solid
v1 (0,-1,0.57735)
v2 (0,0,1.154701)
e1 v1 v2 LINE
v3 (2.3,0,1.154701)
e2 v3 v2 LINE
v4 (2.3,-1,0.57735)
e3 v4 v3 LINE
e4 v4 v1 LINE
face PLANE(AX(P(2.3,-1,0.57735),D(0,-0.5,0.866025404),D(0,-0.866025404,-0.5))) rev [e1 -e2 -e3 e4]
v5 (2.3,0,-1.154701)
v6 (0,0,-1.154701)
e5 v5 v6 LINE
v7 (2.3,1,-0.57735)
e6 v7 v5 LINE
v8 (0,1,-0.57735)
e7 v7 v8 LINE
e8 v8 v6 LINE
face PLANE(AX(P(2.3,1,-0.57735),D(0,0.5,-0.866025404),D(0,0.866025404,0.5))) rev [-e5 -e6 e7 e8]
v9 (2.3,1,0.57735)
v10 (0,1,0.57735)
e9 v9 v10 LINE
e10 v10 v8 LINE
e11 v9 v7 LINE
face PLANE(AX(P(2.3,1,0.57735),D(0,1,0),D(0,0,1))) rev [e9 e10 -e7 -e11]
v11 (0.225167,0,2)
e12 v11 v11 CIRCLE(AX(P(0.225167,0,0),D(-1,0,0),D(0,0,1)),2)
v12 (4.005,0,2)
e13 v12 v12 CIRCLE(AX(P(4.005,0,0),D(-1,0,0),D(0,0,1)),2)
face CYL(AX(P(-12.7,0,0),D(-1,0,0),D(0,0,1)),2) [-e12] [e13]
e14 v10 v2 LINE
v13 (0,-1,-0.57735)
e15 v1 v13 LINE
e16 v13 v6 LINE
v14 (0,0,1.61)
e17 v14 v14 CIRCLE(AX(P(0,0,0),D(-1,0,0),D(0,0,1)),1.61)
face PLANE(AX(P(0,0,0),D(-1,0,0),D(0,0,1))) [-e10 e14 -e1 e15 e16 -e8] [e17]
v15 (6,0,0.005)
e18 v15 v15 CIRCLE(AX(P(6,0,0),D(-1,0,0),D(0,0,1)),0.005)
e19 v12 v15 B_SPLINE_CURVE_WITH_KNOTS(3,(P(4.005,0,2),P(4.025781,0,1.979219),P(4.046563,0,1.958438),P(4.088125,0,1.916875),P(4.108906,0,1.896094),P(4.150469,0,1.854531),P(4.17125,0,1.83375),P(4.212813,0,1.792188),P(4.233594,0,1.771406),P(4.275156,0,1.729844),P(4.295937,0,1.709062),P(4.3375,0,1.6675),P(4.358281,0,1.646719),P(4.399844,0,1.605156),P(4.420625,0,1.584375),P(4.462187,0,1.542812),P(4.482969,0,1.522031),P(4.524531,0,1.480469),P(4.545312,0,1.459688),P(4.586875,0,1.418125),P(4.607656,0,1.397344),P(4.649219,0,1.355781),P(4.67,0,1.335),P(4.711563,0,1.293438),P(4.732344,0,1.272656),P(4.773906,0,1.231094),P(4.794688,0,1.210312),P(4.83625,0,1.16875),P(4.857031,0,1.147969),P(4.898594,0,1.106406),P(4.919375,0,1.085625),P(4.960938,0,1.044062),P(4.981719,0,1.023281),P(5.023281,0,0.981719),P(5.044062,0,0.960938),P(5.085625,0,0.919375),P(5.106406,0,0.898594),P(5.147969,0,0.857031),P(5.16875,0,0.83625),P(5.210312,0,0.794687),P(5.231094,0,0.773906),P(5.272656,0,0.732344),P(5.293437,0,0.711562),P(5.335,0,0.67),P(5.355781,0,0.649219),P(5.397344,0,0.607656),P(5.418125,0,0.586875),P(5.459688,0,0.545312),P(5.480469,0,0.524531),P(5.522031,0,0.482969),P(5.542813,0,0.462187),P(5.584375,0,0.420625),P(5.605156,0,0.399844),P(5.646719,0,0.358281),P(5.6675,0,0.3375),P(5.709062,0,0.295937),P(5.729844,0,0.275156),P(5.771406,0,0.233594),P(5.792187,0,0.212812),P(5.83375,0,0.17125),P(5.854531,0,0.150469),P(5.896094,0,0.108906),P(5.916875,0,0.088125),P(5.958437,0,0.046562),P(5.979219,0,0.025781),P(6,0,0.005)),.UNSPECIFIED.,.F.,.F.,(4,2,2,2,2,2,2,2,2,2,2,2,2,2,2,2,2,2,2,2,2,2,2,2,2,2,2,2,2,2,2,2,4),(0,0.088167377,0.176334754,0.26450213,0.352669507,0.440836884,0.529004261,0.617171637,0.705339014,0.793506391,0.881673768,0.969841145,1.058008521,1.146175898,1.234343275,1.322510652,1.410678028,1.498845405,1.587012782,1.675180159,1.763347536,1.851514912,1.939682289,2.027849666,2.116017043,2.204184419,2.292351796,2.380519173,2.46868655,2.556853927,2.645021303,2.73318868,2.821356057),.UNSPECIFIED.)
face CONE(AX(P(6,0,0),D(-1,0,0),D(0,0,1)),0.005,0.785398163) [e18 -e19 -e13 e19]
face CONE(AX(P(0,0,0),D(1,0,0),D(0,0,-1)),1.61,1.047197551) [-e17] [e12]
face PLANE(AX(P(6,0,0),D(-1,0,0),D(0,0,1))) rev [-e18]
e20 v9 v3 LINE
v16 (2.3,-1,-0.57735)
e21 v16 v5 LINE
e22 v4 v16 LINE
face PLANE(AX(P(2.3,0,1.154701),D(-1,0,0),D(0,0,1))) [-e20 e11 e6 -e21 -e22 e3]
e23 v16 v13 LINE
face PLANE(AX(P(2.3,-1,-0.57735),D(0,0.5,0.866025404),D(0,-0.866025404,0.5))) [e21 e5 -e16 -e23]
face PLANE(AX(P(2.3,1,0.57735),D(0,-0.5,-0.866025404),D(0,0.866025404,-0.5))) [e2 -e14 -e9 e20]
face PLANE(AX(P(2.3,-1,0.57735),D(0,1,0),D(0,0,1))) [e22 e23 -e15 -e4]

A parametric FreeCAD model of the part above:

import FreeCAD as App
import Part
import Sketcher
Q = App.Units.Quantity

doc = App.newDocument("Part")
body = doc.addObject("PartDesign::Body", "Body")

# Sketch on XY plane
sketch1 = doc.addObject("Sketcher::SketchObject", "Sketch")
body.addObject(sketch1)
sketch1.AttachmentSupport = (doc.XY_Plane, [""])
sketch1.MapMode = "FlatFace"
sketch1.addGeometry(Part.LineSegment(App.Vector(0, 1.61, 0), App.Vector(0, 0, 0)), False)
sketch1.addGeometry(Part.LineSegment(App.Vector(0, 0, 0), App.Vector(6, 0, 0)), False)
sketch1.addGeometry(Part.LineSegment(App.Vector(6, 0, 0), App.Vector(6, 0.005, 0)), False)
sketch1.addGeometry(Part.LineSegment(App.Vector(6, 0.005, 0), App.Vector(4.005, 2, 0)), False)
sketch1.addGeometry(Part.LineSegment(App.Vector(4.005, 2, 0), App.Vector(0.225, 2, 0)), False)
sketch1.addGeometry(Part.LineSegment(App.Vector(0.225, 2, 0), App.Vector(0, 1.61, 0)), False)
sketch1.addConstraint(Sketcher.Constraint("Coincident", 0, 2, 1, 1))
sketch1.addConstraint(Sketcher.Constraint("Coincident", 1, 2, 2, 1))
sketch1.addConstraint(Sketcher.Constraint("Coincident", 2, 2, 3, 1))
sketch1.addConstraint(Sketcher.Constraint("Coincident", 3, 2, 4, 1))
sketch1.addConstraint(Sketcher.Constraint("Coincident", 4, 2, 5, 1))
sketch1.addConstraint(Sketcher.Constraint("Coincident", 5, 2, 0, 1))
sketch1.addConstraint(Sketcher.Constraint("Vertical", 0))
sketch1.addConstraint(Sketcher.Constraint("Horizontal", 1))
sketch1.addConstraint(Sketcher.Constraint("Vertical", 2))
sketch1.addConstraint(Sketcher.Constraint("Horizontal", 4))
sketch1.addConstraint(Sketcher.Constraint("Coincident", 0, 2, -1, 1))
sketch1.addConstraint(Sketcher.Constraint("DistanceX", 1, 1, 1, 2, Q("6 mm")))
sketch1.addConstraint(Sketcher.Constraint("Angle", 3, Q("135 deg")))
sketch1.addConstraint(Sketcher.Constraint("Angle", 5, Q("-120 deg")))
sketch1.addConstraint(Sketcher.Constraint("DistanceY", -1, 1, 3, 2, Q("2 mm")))
sketch1.addConstraint(Sketcher.Constraint("DistanceY", 0, 2, 0, 1, Q("1.61 mm")))
sketch1.addConstraint(Sketcher.Constraint("DistanceY", 2, 1, 2, 2, Q("0.005 mm")))
revolution = doc.addObject("PartDesign::Revolution", "Revolution")
body.addObject(revolution)
revolution.Profile = sketch1
revolution.ReferenceAxis = (sketch1, ["H_Axis"])
revolution.Angle = 360

# Sketch on YZ plane
sketch2 = doc.addObject("Sketcher::SketchObject", "Sketch001")
body.addObject(sketch2)
sketch2.AttachmentSupport = (doc.YZ_Plane, [""])
sketch2.MapMode = "FlatFace"
sketch2.addGeometry(Part.LineSegment(App.Vector(1, 0.6, 0), App.Vector(1, -0.6, 0)), False)
sketch2.addGeometry(Part.LineSegment(App.Vector(1, -0.6, 0), App.Vector(0, -1.2, 0)), False)
sketch2.addGeometry(Part.LineSegment(App.Vector(0, -1.2, 0), App.Vector(-1, -0.6, 0)), False)
sketch2.addGeometry(Part.LineSegment(App.Vector(-1, -0.6, 0), App.Vector(-1, 0.6, 0)), False)
sketch2.addGeometry(Part.LineSegment(App.Vector(-1, 0.6, 0), App.Vector(0, 1.2, 0)), False)
sketch2.addGeometry(Part.LineSegment(App.Vector(0, 1.2, 0), App.Vector(1, 0.6, 0)), False)
sketch2.addConstraint(Sketcher.Constraint("Coincident", 0, 2, 1, 1))
sketch2.addConstraint(Sketcher.Constraint("Coincident", 1, 2, 2, 1))
sketch2.addConstraint(Sketcher.Constraint("Coincident", 2, 2, 3, 1))
sketch2.addConstraint(Sketcher.Constraint("Coincident", 3, 2, 4, 1))
sketch2.addConstraint(Sketcher.Constraint("Coincident", 4, 2, 5, 1))
sketch2.addConstraint(Sketcher.Constraint("Coincident", 5, 2, 0, 1))
sketch2.addConstraint(Sketcher.Constraint("Vertical", 0))
sketch2.addConstraint(Sketcher.Constraint("Vertical", 3))
sketch2.addConstraint(Sketcher.Constraint("Symmetric", 0, 2, 3, 2, -1, 1))
sketch2.addConstraint(Sketcher.Constraint("Symmetric", 1, 2, 4, 2, -1, 1))
sketch2.addConstraint(Sketcher.Constraint("PointOnObject", 1, 2, -2))
sketch2.addConstraint(Sketcher.Constraint("Parallel", 2, 5))
sketch2.addConstraint(Sketcher.Constraint("Horizontal", 0, 2, 2, 2))
sketch2.addConstraint(Sketcher.Constraint("Angle", 1, Q("-150 deg")))
sketch2.addConstraint(Sketcher.Constraint("DistanceX", -1, 1, 0, 2, Q("1 mm")))
sketch2.addConstraint(Sketcher.Constraint("DistanceY", 0, 2, 0, 1, Q("1.154701 mm")))
pocket1 = doc.addObject("PartDesign::Pocket", "Pocket")
body.addObject(pocket1)
pocket1.Profile = sketch2
pocket1.Length = 2.3
pocket1.Reversed = True

doc.recompute()
